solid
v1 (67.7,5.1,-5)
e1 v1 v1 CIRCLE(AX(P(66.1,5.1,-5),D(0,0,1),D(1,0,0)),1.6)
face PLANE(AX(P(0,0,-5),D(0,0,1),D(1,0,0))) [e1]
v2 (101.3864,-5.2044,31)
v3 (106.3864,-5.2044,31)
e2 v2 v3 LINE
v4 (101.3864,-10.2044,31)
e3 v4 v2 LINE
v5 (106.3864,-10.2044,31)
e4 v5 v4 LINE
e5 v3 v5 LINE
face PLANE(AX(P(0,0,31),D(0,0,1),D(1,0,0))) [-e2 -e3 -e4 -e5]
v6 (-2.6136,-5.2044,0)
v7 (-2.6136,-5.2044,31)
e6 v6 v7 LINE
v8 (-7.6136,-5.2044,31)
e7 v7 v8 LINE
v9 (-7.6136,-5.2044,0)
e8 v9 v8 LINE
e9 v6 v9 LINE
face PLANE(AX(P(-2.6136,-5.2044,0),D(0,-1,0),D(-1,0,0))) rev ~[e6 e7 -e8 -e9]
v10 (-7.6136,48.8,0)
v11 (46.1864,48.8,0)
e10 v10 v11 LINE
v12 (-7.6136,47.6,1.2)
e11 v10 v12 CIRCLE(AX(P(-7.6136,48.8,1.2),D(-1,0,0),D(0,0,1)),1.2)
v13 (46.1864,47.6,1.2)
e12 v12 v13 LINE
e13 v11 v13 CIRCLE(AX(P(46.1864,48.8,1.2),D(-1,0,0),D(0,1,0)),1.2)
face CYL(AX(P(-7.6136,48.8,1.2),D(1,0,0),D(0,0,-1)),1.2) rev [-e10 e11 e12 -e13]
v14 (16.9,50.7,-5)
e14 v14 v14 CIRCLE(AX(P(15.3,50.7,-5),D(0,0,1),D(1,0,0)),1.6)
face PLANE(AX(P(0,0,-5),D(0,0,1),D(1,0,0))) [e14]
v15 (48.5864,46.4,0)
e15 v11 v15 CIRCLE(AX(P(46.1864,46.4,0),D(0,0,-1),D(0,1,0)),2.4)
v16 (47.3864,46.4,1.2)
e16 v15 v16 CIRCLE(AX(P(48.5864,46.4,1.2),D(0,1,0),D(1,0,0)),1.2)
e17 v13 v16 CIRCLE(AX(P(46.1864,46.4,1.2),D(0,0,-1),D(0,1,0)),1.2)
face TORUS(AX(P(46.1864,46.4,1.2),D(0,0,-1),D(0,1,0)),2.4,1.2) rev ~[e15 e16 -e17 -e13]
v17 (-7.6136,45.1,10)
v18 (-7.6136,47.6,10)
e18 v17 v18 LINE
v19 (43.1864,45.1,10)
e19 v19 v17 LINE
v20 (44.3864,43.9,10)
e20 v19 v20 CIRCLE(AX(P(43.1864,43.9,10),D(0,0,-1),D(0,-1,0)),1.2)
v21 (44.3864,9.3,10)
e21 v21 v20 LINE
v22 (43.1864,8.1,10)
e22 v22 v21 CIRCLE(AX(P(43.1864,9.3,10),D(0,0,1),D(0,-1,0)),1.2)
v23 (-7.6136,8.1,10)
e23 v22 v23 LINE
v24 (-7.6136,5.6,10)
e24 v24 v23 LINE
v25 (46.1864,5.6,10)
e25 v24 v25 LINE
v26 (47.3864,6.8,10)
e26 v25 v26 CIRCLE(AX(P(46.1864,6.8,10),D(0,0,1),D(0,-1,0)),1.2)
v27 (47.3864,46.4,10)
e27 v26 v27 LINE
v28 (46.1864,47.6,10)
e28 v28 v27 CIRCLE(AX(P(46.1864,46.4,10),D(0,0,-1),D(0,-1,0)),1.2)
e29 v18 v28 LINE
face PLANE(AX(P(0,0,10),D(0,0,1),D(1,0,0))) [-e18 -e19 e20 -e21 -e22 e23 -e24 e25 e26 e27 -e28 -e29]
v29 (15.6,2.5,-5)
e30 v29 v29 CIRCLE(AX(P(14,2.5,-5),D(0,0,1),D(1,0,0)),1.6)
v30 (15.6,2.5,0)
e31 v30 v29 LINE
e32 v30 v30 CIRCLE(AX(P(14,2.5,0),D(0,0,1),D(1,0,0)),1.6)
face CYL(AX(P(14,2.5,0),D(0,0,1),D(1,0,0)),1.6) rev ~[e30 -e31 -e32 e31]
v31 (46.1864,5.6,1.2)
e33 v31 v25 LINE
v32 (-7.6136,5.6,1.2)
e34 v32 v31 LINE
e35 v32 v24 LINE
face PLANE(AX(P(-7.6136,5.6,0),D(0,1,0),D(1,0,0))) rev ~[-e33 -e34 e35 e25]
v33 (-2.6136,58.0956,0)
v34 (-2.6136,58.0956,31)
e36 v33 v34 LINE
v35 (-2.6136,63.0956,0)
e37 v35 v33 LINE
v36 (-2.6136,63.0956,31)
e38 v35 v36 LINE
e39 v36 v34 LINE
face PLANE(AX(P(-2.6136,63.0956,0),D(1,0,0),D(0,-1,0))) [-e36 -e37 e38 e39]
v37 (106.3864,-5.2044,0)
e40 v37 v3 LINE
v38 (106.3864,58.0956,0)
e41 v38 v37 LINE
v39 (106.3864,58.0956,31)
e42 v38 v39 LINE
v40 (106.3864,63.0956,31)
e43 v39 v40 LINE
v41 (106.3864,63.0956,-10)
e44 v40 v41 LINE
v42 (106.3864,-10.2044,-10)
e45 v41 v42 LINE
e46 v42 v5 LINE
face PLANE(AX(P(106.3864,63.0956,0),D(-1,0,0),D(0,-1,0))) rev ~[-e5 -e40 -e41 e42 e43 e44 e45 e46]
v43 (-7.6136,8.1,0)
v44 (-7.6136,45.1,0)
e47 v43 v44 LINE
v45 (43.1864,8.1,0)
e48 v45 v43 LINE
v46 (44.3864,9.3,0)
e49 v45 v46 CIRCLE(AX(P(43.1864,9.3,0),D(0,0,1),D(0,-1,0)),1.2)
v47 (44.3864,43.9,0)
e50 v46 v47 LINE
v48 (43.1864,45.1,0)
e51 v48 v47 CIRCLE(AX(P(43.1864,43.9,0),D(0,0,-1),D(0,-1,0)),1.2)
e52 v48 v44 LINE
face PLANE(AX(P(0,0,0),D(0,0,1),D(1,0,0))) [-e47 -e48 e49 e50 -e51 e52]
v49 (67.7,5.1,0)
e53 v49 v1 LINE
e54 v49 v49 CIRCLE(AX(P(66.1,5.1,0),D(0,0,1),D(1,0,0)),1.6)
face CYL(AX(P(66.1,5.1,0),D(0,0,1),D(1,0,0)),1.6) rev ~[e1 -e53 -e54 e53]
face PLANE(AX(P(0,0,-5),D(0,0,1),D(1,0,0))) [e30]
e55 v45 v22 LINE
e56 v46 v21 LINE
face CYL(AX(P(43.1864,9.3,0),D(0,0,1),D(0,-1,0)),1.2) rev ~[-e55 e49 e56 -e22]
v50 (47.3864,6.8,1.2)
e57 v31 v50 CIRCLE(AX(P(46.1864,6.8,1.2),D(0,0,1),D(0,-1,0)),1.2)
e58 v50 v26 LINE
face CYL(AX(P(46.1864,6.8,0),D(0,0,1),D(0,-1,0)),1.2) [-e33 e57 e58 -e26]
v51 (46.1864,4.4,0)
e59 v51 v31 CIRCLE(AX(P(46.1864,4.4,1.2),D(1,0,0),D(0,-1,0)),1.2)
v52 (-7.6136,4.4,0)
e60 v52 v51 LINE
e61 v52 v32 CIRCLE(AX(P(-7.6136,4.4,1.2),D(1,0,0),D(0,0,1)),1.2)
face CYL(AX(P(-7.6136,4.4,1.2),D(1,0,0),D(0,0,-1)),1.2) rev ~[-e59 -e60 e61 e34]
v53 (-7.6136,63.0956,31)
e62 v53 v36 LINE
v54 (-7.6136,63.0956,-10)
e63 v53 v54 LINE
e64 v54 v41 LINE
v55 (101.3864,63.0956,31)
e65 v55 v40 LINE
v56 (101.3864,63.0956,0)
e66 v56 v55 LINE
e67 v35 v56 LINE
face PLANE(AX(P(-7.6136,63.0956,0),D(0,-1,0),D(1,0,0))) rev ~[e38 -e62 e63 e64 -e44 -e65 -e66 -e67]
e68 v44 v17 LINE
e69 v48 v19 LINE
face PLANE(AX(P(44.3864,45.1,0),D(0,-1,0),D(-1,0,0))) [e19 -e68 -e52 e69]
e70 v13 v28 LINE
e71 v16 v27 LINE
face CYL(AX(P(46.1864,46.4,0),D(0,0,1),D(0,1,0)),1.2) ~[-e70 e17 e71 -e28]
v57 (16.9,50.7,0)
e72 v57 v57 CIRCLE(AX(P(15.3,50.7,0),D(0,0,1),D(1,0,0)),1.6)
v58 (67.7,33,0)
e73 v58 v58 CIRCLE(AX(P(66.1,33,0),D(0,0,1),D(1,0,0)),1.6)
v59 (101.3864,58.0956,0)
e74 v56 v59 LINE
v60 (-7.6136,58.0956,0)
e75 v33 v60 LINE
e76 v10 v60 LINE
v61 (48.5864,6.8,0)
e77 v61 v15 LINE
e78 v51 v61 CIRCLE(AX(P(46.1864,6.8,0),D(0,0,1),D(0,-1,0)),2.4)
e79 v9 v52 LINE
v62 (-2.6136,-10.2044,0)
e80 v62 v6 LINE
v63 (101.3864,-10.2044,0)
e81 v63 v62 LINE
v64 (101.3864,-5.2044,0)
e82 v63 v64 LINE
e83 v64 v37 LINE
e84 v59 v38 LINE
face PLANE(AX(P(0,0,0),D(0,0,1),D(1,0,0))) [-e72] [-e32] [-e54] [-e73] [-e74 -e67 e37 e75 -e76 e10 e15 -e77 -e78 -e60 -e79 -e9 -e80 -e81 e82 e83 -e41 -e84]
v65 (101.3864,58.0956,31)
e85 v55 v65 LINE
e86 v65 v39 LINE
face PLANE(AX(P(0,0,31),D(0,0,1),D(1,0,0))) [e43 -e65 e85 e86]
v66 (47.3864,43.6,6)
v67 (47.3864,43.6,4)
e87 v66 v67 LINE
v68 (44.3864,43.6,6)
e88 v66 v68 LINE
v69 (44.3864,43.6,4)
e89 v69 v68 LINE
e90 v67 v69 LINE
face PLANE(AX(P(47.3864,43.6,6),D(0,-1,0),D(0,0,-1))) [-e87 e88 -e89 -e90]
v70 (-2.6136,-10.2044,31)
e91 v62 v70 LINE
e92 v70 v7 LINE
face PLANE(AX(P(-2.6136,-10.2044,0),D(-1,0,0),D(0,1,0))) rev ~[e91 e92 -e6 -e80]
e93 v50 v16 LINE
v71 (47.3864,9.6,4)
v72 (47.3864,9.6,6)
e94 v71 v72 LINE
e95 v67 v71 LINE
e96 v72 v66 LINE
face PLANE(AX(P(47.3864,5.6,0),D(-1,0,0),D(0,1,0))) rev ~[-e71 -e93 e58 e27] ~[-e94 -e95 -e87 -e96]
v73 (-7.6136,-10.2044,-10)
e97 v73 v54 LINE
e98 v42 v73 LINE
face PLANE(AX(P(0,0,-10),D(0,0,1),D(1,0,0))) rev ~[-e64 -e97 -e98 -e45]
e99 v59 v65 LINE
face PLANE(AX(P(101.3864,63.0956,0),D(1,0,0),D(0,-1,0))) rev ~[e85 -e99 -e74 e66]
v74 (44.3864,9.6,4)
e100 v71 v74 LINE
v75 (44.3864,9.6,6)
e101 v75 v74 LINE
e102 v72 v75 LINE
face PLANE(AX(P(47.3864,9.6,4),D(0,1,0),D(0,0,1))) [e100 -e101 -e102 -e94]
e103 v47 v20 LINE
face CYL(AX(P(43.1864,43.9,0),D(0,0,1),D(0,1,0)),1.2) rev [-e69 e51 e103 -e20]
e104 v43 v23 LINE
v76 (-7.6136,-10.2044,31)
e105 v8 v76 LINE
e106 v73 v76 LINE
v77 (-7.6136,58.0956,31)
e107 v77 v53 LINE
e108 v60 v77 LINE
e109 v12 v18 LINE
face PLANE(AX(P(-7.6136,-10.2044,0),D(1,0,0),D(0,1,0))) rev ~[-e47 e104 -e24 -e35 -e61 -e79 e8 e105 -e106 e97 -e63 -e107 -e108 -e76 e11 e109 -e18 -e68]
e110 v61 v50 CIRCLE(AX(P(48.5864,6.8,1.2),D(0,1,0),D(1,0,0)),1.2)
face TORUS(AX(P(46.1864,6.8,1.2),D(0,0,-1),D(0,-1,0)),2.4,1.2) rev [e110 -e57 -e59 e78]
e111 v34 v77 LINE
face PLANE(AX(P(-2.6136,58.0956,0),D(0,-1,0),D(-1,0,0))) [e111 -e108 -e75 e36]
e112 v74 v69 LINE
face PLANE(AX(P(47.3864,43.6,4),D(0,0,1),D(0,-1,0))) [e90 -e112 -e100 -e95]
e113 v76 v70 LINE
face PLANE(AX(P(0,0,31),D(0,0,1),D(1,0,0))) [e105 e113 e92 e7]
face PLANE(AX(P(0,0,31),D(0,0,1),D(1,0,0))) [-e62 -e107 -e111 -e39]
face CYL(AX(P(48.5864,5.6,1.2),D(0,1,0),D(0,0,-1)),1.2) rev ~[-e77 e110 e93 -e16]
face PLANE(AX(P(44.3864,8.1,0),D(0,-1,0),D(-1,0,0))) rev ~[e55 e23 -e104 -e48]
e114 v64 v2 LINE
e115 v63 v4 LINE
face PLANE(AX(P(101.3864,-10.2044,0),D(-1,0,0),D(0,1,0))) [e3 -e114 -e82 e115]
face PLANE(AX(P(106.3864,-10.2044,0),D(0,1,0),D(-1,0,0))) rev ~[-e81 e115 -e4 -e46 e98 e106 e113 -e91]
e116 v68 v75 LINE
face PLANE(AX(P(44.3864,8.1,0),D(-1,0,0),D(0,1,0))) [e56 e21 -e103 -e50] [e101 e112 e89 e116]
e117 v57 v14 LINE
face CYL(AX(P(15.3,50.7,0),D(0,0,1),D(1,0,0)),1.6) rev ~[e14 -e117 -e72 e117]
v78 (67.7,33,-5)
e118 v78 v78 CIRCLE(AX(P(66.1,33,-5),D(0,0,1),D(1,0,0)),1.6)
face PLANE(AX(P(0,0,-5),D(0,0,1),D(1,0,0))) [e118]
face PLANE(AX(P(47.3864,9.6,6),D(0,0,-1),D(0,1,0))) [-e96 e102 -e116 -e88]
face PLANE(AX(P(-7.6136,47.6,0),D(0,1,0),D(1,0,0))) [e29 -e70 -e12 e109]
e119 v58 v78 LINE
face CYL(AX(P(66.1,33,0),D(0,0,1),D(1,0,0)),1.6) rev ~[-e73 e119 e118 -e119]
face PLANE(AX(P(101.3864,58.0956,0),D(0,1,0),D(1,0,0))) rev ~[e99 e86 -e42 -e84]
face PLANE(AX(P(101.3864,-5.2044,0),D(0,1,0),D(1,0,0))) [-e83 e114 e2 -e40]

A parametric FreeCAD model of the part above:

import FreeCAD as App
import Part
import Sketcher

V = App.Vector


def edges_at(feature, points):
    """Names of the edges that pass closest to the given points."""
    edges = feature.Shape.Edges
    near = lambda p: min(range(len(edges)), key=lambda i: edges[i].distToShape(Part.Vertex(*p))[0])
    return sorted({f"Edge{near(p) + 1}" for p in points})

doc = App.newDocument("Part")
body = doc.addObject("PartDesign::Body", "Body")

# Sketch on XY plane
sketch1 = body.newObject("Sketcher::SketchObject", "Sketch")
sketch1.AttachmentSupport = (doc.getObject("XY_Plane"), [""])
sketch1.MapMode = "FlatFace"
sketch1.addGeometry([
    Part.LineSegment(V(-8, 63, 0), V(-8, -10, 0)),
    Part.LineSegment(V(-8, -10, 0), V(106, -10, 0)),
    Part.LineSegment(V(106, -10, 0), V(106, 63, 0)),
    Part.LineSegment(V(106, 63, 0), V(-8, 63, 0)),
], False)
sketch1.addConstraint([
    Sketcher.Constraint("Coincident", 0, 2, 1, 1),
    Sketcher.Constraint("Coincident", 1, 2, 2, 1),
    Sketcher.Constraint("Coincident", 2, 2, 3, 1),
    Sketcher.Constraint("Coincident", 3, 2, 0, 1),
    Sketcher.Constraint("Vertical", 0),
    Sketcher.Constraint("Horizontal", 1),
    Sketcher.Constraint("Vertical", 2),
    Sketcher.Constraint("Horizontal", 3),
    Sketcher.Constraint("DistanceX", 1, 1, 1, 2, 114.0),
    Sketcher.Constraint("DistanceY", 0, 2, 0, 1, 73.3),
    Sketcher.Constraint("DistanceX", 0, 2, -1, 1, 7.6136),
    Sketcher.Constraint("DistanceY", 0, 2, -1, 1, 10.2044),
])
pad1 = body.newObject("PartDesign::Pad", "Pad")
pad1.Profile = sketch1
pad1.Length = 10
pad1.Reversed = True

# Sketch on XY plane
sketch2 = body.newObject("Sketcher::SketchObject", "Sketch001")
sketch2.AttachmentSupport = (doc.getObject("XY_Plane"), [""])
sketch2.MapMode = "FlatFace"
sketch2.addGeometry([
    Part.Circle(V(14, 2.5, 0), V(0, 0, 1), 1.6),
    Part.Circle(V(15.3, 50.7, 0), V(0, 0, 1), 1.6),
    Part.Circle(V(66.1, 5.1, 0), V(0, 0, 1), 1.6),
    Part.Circle(V(66.1, 33, 0), V(0, 0, 1), 1.6),
], False)
sketch2.addConstraint([
    Sketcher.Constraint("Equal", 0, 1),
    Sketcher.Constraint("Equal", 1, 2),
    Sketcher.Constraint("Equal", 2, 3),
    Sketcher.Constraint("Vertical", 2, 3, 3, 3),
    Sketcher.Constraint("Diameter", 0, 3.2),
    Sketcher.Constraint("DistanceX", -1, 1, 0, 3, 14.0),
    Sketcher.Constraint("DistanceY", -1, 1, 0, 3, 2.5),
    Sketcher.Constraint("DistanceY", -1, 1, 2, 3, 5.1),
    Sketcher.Constraint("DistanceX", 0, 3, 1, 3, 1.3),
    Sketcher.Constraint("DistanceY", 2, 3, 3, 3, 27.9),
    Sketcher.Constraint("DistanceY", -1, 1, 1, 3, 50.7),
    Sketcher.Constraint("DistanceX", -1, 1, 2, 3, 66.1),
])
pocket1 = body.newObject("PartDesign::Pocket", "Pocket")
pocket1.Profile = sketch2
pocket1.Length = 5

# Sketch on XY plane
sketch3 = body.newObject("Sketcher::SketchObject", "Sketch002")
sketch3.AttachmentSupport = (doc.getObject("XY_Plane"), [""])
sketch3.MapMode = "FlatFace"
sketch3.addGeometry([
    Part.LineSegment(V(44.4, 8.1, 0), V(-7.6, 8.1, 0)),  # 0
    Part.LineSegment(V(-7.6, 8.1, 0), V(-7.6, 5.6, 0)),  # 1
    Part.LineSegment(V(-7.6, 5.6, 0), V(47.4, 5.6, 0)),  # 2
    Part.LineSegment(V(47.4, 5.6, 0), V(47.4, 47.6, 0)),  # 3
    Part.LineSegment(V(47.4, 47.6, 0), V(-7.6, 47.6, 0)),  # 4
    Part.LineSegment(V(-7.6, 47.6, 0), V(-7.6, 45.1, 0)),  # 5
    Part.LineSegment(V(-7.6, 45.1, 0), V(44.4, 45.1, 0)),  # 6
    Part.LineSegment(V(44.4, 45.1, 0), V(44.4, 8.1, 0)),  # 7
], False)
sketch3.addConstraint([
    Sketcher.Constraint("Coincident", 0, 2, 1, 1),
    Sketcher.Constraint("Coincident", 1, 2, 2, 1),
    Sketcher.Constraint("Coincident", 2, 2, 3, 1),
    Sketcher.Constraint("Coincident", 3, 2, 4, 1),
    Sketcher.Constraint("Coincident", 4, 2, 5, 1),
    Sketcher.Constraint("Coincident", 5, 2, 6, 1),
    Sketcher.Constraint("Coincident", 6, 2, 7, 1),
    Sketcher.Constraint("Coincident", 7, 2, 0, 1),
    Sketcher.Constraint("Horizontal", 0),
    Sketcher.Constraint("Vertical", 1),
    Sketcher.Constraint("Horizontal", 2),
    Sketcher.Constraint("Vertical", 3),
    Sketcher.Constraint("Horizontal", 4),
    Sketcher.Constraint("Vertical", 5),
    Sketcher.Constraint("Horizontal", 6),
    Sketcher.Constraint("Vertical", 7),
    Sketcher.Constraint("Vertical", 1, 2, 4, 2),
    Sketcher.Constraint("Equal", 1, 5),
    Sketcher.Constraint("DistanceX", 2, 1, 2, 2, 55.0),
    Sketcher.Constraint("DistanceY", 1, 2, 1, 1, 2.5),
    Sketcher.Constraint("DistanceX", 0, 2, 0, 1, 52.0),
    Sketcher.Constraint("DistanceY", 3, 1, 3, 2, 42.0),
    Sketcher.Constraint("DistanceY", -1, 1, 0, 2, 8.1),
    Sketcher.Constraint("DistanceX", 0, 2, -1, 1, 7.6136),
])
pad2 = body.newObject("PartDesign::Pad", "Pad001")
pad2.Profile = sketch3
pad2.Length = 10

# Sketch on YZ plane
sketch4 = body.newObject("Sketcher::SketchObject", "Sketch003")
sketch4.AttachmentSupport = (doc.getObject("YZ_Plane"), [""])
sketch4.MapMode = "FlatFace"
sketch4.AttachmentOffset = App.Placement(V(0, 0, 47.3864), App.Rotation())
sketch4.addGeometry([
    Part.LineSegment(V(43.6, 4, 0), V(43.6, 6, 0)),
    Part.LineSegment(V(43.6, 6, 0), V(9.6, 6, 0)),
    Part.LineSegment(V(9.6, 6, 0), V(9.6, 4, 0)),
    Part.LineSegment(V(9.6, 4, 0), V(43.6, 4, 0)),
], False)
sketch4.addConstraint([
    Sketcher.Constraint("Coincident", 0, 2, 1, 1),
    Sketcher.Constraint("Coincident", 1, 2, 2, 1),
    Sketcher.Constraint("Coincident", 2, 2, 3, 1),
    Sketcher.Constraint("Coincident", 3, 2, 0, 1),
    Sketcher.Constraint("Vertical", 0),
    Sketcher.Constraint("Horizontal", 1),
    Sketcher.Constraint("Vertical", 2),
    Sketcher.Constraint("Horizontal", 3),
    Sketcher.Constraint("DistanceY", -1, 1, 2, 2, 4.0),
    Sketcher.Constraint("DistanceX", 1, 2, 1, 1, 34.0),
    Sketcher.Constraint("DistanceY", 0, 1, 0, 2, 2.0),
    Sketcher.Constraint("DistanceX", -1, 1, 0, 2, 43.6),
])
pocket2 = body.newObject("PartDesign::Pocket", "Pocket001")
pocket2.Profile = sketch4
pocket2.Type = "ThroughAll"
doc.recompute()

fillet = body.newObject("PartDesign::Fillet", "Fillet")
fillet.Base = (pocket2, edges_at(pocket2, [
    (19.886, 47.6, 0),
    (19.886, 5.6, 0),
    (47.386, 26.6, 0),
    (47.386, 5.6, 5),
    (47.386, 47.6, 5),
    (44.386, 45.1, 5),
    (44.386, 8.1, 5),
]))
fillet.Radius = 1.2

# Sketch on XY plane
sketch5 = body.newObject("Sketcher::SketchObject", "Sketch004")
sketch5.AttachmentSupport = (doc.getObject("XY_Plane"), [""])
sketch5.MapMode = "FlatFace"
sketch5.addGeometry([
    Part.LineSegment(V(101, -10, 0), V(106, -10, 0)),  # 0
    Part.LineSegment(V(106, -10, 0), V(106, -5, 0)),  # 1
    Part.LineSegment(V(106, -5, 0), V(101, -5, 0)),  # 2
    Part.LineSegment(V(101, -5, 0), V(101, -10, 0)),  # 3
    Part.LineSegment(V(106, 63, 0), V(101, 63, 0)),  # 4
    Part.LineSegment(V(101, 63, 0), V(101, 58, 0)),  # 5
    Part.LineSegment(V(101, 58, 0), V(106, 58, 0)),  # 6
    Part.LineSegment(V(106, 58, 0), V(106, 63, 0)),  # 7
    Part.LineSegment(V(-3, 63, 0), V(-8, 63, 0)),  # 8
    Part.LineSegment(V(-8, 63, 0), V(-8, 58, 0)),  # 9
    Part.LineSegment(V(-8, 58, 0), V(-3, 58, 0)),  # 10
    Part.LineSegment(V(-3, 58, 0), V(-3, 63, 0)),  # 11
    Part.LineSegment(V(-8, -5, 0), V(-8, -10, 0)),  # 12
    Part.LineSegment(V(-8, -10, 0), V(-3, -10, 0)),  # 13
    Part.LineSegment(V(-3, -10, 0), V(-3, -5, 0)),  # 14
    Part.LineSegment(V(-3, -5, 0), V(-8, -5, 0)),  # 15
], False)
sketch5.addConstraint([
    Sketcher.Constraint("Coincident", 0, 2, 1, 1),
    Sketcher.Constraint("Coincident", 1, 2, 2, 1),
    Sketcher.Constraint("Coincident", 2, 2, 3, 1),
    Sketcher.Constraint("Coincident", 3, 2, 0, 1),
    Sketcher.Constraint("Coincident", 4, 2, 5, 1),
    Sketcher.Constraint("Coincident", 5, 2, 6, 1),
    Sketcher.Constraint("Coincident", 6, 2, 7, 1),
    Sketcher.Constraint("Coincident", 7, 2, 4, 1),
    Sketcher.Constraint("Coincident", 8, 2, 9, 1),
    Sketcher.Constraint("Coincident", 9, 2, 10, 1),
    Sketcher.Constraint("Coincident", 10, 2, 11, 1),
    Sketcher.Constraint("Coincident", 11, 2, 8, 1),
    Sketcher.Constraint("Coincident", 12, 2, 13, 1),
    Sketcher.Constraint("Coincident", 13, 2, 14, 1),
    Sketcher.Constraint("Coincident", 14, 2, 15, 1),
    Sketcher.Constraint("Coincident", 15, 2, 12, 1),
    Sketcher.Constraint("Horizontal", 0),
    Sketcher.Constraint("Vertical", 1),
    Sketcher.Constraint("Horizontal", 2),
    Sketcher.Constraint("Vertical", 3),
    Sketcher.Constraint("Horizontal", 4),
    Sketcher.Constraint("Vertical", 5),
    Sketcher.Constraint("Horizontal", 6),
    Sketcher.Constraint("Vertical", 7),
    Sketcher.Constraint("Horizontal", 8),
    Sketcher.Constraint("Vertical", 9),
    Sketcher.Constraint("Horizontal", 10),
    Sketcher.Constraint("Vertical", 11),
    Sketcher.Constraint("Vertical", 12),
    Sketcher.Constraint("Horizontal", 13),
    Sketcher.Constraint("Vertical", 14),
    Sketcher.Constraint("Horizontal", 15),
    Sketcher.Constraint("Horizontal", 7, 2, 8, 2),
    Sketcher.Constraint("Horizontal", 6, 2, 9, 2),
    Sketcher.Constraint("Horizontal", 3, 2, 12, 2),
    Sketcher.Constraint("Horizontal", 2, 2, 14, 2),
    Sketcher.Constraint("Vertical", 3, 2, 4, 2),
    Sketcher.Constraint("Vertical", 1, 2, 6, 2),
    Sketcher.Constraint("Vertical", 9, 2, 12, 2),
    Sketcher.Constraint("Vertical", 11, 2, 13, 2),
    Sketcher.Constraint("Equal", 6, 8),
    Sketcher.Constraint("Equal", 15, 1),
    Sketcher.Constraint("Equal", 3, 5),
    Sketcher.Constraint("DistanceX", 0, 1, 0, 2, 5.0),
    Sketcher.Constraint("DistanceX", 8, 2, 4, 2, 109.0),
    Sketcher.Constraint("DistanceY", 2, 2, 4, 2, 68.3),
    Sketcher.Constraint("DistanceX", -1, 1, 0, 2, 106.3864),
    Sketcher.Constraint("DistanceY", 0, 2, -1, 1, 10.2044),
])
pad3 = body.newObject("PartDesign::Pad", "Pad002")
pad3.Profile = sketch5
pad3.Length = 31

doc.recompute()
